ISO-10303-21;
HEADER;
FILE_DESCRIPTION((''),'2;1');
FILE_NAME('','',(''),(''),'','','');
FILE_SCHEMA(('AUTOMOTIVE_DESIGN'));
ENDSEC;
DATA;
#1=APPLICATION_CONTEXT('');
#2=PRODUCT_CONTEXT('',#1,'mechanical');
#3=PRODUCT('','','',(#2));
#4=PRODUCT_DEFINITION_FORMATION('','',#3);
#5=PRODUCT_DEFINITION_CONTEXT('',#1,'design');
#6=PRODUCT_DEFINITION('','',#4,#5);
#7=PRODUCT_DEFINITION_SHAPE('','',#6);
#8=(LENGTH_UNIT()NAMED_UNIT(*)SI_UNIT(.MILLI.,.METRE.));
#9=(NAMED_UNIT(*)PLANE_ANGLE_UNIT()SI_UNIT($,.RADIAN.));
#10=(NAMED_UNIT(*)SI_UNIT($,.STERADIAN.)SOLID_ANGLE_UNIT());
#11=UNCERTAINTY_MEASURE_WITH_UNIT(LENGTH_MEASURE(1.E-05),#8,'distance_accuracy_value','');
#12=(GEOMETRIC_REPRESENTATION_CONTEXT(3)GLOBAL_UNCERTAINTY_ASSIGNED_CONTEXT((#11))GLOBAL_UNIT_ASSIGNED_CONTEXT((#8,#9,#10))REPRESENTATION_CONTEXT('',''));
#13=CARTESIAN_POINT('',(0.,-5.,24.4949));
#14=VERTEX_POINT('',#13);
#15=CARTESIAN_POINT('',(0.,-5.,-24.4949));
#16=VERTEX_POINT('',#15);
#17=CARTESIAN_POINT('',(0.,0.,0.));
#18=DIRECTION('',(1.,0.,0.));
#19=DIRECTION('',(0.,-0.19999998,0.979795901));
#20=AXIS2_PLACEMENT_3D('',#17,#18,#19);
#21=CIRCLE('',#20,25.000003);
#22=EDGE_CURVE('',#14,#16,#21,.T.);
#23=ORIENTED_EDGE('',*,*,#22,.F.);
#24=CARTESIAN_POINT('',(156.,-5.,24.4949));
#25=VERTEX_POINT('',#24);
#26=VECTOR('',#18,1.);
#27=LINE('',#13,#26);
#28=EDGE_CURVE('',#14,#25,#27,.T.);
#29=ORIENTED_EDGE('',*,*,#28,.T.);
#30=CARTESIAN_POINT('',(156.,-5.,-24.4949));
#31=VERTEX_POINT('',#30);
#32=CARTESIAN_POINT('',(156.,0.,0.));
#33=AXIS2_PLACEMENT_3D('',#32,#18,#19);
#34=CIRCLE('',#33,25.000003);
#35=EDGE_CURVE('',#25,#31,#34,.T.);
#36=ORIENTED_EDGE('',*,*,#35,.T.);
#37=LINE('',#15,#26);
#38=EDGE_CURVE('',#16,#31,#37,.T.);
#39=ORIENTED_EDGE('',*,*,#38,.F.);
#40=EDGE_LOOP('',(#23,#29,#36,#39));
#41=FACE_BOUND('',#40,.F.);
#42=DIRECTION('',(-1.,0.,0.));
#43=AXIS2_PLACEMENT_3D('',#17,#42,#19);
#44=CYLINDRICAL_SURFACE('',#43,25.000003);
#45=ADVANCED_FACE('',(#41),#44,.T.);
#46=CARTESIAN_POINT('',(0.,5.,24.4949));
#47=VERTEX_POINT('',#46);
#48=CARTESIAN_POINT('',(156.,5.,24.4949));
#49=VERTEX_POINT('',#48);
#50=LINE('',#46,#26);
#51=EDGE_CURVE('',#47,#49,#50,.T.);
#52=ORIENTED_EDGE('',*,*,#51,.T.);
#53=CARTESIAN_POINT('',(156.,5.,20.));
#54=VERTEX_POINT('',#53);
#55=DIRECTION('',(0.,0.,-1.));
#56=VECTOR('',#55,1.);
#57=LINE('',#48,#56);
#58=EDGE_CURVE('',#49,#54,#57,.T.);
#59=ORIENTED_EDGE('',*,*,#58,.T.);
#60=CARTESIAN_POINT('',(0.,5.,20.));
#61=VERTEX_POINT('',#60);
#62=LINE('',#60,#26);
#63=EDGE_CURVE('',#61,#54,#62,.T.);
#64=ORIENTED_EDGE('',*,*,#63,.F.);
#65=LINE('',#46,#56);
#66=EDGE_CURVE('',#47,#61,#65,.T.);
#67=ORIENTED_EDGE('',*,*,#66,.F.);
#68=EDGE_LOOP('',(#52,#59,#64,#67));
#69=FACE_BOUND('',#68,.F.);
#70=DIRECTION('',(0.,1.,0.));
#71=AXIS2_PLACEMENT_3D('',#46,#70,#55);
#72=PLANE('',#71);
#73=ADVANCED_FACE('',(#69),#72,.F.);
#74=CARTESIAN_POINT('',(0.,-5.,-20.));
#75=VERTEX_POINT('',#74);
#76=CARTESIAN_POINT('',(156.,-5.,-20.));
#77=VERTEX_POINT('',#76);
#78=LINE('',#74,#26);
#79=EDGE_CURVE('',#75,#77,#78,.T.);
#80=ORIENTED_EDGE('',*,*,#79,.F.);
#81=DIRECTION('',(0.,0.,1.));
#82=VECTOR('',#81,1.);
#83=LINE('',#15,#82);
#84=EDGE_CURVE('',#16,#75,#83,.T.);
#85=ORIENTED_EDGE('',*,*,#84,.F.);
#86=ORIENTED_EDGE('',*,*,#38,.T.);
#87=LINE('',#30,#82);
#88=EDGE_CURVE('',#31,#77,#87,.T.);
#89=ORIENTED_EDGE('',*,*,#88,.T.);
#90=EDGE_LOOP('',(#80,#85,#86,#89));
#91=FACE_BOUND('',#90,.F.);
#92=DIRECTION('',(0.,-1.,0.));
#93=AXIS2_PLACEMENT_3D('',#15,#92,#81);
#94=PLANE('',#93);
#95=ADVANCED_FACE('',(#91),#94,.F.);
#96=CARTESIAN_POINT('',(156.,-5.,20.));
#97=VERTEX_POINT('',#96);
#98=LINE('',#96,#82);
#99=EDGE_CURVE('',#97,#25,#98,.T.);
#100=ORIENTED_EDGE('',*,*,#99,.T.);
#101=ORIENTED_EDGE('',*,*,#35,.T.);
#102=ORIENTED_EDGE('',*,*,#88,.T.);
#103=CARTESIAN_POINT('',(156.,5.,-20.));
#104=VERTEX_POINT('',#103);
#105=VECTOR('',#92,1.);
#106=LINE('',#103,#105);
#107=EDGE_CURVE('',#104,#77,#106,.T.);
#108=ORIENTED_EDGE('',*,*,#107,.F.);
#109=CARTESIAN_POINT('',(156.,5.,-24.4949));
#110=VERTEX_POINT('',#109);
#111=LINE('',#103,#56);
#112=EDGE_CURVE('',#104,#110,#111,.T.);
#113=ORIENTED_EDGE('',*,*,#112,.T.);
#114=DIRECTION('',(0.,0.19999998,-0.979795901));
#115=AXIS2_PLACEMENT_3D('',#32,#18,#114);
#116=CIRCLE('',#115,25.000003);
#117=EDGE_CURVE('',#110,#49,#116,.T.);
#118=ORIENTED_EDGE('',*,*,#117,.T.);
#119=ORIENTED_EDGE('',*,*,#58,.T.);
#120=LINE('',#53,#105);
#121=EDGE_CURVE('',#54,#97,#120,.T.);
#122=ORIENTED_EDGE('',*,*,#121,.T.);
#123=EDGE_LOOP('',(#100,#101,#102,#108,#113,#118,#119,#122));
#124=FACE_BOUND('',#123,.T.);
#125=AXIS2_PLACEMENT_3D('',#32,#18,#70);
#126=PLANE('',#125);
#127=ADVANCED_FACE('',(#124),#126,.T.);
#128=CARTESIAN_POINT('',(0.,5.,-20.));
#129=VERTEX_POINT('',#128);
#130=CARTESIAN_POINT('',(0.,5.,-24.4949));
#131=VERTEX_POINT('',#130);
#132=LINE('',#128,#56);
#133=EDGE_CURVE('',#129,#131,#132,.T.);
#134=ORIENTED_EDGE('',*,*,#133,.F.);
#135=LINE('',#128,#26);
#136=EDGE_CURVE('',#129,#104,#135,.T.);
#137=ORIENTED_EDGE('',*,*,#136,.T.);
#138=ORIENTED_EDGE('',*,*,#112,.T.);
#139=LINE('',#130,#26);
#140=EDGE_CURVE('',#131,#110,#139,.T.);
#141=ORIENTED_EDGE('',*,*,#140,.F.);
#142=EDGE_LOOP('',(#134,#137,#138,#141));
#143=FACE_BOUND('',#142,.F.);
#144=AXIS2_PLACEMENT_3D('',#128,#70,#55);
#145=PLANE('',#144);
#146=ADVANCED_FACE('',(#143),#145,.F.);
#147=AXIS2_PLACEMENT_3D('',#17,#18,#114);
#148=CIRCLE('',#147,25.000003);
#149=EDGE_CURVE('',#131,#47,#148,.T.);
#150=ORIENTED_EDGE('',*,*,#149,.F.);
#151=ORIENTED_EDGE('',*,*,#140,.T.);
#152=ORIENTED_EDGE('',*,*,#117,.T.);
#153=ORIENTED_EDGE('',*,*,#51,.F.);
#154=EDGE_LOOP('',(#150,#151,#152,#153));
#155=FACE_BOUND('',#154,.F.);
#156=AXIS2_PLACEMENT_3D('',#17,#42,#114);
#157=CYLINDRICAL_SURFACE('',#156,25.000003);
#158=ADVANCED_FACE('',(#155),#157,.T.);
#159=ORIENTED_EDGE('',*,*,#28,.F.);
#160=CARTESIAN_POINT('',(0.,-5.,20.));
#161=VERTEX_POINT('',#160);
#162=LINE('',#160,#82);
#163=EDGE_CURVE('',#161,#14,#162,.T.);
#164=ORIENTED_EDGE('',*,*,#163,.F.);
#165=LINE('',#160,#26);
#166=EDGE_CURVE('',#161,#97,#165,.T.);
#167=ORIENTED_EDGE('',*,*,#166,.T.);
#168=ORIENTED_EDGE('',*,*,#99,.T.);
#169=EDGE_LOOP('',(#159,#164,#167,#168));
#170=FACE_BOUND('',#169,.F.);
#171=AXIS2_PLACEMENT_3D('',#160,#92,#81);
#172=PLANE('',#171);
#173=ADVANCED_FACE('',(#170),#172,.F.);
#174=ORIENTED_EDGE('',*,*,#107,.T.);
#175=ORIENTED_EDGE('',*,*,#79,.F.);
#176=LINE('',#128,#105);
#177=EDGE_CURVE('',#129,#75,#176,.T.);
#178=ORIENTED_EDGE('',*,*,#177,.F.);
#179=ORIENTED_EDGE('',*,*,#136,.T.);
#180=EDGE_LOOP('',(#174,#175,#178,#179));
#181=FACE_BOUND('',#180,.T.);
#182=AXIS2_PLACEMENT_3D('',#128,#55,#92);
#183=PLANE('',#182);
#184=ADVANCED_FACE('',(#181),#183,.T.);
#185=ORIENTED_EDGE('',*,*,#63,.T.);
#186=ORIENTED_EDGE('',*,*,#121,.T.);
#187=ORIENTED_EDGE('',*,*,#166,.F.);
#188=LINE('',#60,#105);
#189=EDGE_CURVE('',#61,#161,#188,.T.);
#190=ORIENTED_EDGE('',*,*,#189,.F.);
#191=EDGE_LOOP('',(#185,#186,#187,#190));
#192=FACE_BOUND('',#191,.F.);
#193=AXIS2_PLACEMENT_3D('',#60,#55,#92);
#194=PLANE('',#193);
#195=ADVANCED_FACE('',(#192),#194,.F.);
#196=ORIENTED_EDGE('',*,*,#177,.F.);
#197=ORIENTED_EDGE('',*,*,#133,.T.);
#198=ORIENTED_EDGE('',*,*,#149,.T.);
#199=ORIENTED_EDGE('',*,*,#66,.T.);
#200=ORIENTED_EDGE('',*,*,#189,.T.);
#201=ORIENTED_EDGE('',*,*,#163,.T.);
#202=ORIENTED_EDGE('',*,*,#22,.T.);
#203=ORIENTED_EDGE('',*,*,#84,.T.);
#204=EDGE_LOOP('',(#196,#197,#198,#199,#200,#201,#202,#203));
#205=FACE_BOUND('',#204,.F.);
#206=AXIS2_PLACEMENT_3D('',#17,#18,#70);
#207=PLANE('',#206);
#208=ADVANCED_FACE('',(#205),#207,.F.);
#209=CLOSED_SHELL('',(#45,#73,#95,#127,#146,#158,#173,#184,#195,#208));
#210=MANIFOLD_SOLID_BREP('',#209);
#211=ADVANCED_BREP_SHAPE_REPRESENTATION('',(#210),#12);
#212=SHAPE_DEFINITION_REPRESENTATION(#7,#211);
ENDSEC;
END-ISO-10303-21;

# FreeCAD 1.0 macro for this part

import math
import FreeCAD as App
import Part
import Sketcher
from FreeCAD import Vector

doc = App.newDocument("Part")
body = doc.addObject("PartDesign::Body", "Body")

sketch1 = body.newObject("Sketcher::SketchObject", "Sketch")
sketch1.AttachmentSupport = (doc.getObject("YZ_Plane"), [""])
sketch1.MapMode = "FlatFace"
sketch1.addGeometry([
    Part.LineSegment(Vector(5, 24.5, 0), Vector(5, 20, 0)),
    Part.LineSegment(Vector(5, 20, 0), Vector(-5, 20, 0)),
    Part.LineSegment(Vector(-5, 20, 0), Vector(-5, 24.5, 0)),
    Part.ArcOfCircle(Part.Circle(Vector(0, 0, 0), Vector(0, 0, 1), 25), math.radians(102), math.radians(258)),
    Part.LineSegment(Vector(-5, -24.5, 0), Vector(-5, -20, 0)),
    Part.LineSegment(Vector(-5, -20, 0), Vector(5, -20, 0)),
    Part.LineSegment(Vector(5, -20, 0), Vector(5, -24.5, 0)),
    Part.ArcOfCircle(Part.Circle(Vector(0, 0, 0), Vector(0, 0, 1), 25), math.radians(-78), math.radians(78)),
], False)
sketch1.addConstraint([
    Sketcher.Constraint("Coincident", 0, 2, 1, 1),
    Sketcher.Constraint("Coincident", 1, 2, 2, 1),
    Sketcher.Constraint("Coincident", 2, 2, 3, 1),
    Sketcher.Constraint("Coincident", 3, 2, 4, 1),
    Sketcher.Constraint("Coincident", 4, 2, 5, 1),
    Sketcher.Constraint("Coincident", 5, 2, 6, 1),
    Sketcher.Constraint("Coincident", 6, 2, 7, 1),
    Sketcher.Constraint("Coincident", 7, 2, 0, 1),
    Sketcher.Constraint("Vertical", 0),
    Sketcher.Constraint("Horizontal", 1),
    Sketcher.Constraint("Vertical", 2),
    Sketcher.Constraint("Vertical", 4),
    Sketcher.Constraint("Horizontal", 5),
    Sketcher.Constraint("Vertical", 6),
    Sketcher.Constraint("Coincident", 3, 3, -1, 1),
    Sketcher.Constraint("Coincident", 7, 3, -1, 1),
    Sketcher.Constraint("Equal", 3, 7),
    Sketcher.Constraint("Symmetric", 0, 2, 4, 2, -1, 1),
    Sketcher.Constraint("Horizontal", 3, 2, 6, 2),
    Sketcher.Constraint("Horizontal", 2, 2, 7, 2),
    Sketcher.Constraint("Radius", 3, 25.0),
    Sketcher.Constraint("DistanceX", 1, 2, 1, 1, 10.0),
    Sketcher.Constraint("DistanceY", -1, 1, 0, 2, 20.0),
])
pad1 = body.newObject("PartDesign::Pad", "Pad")
pad1.Profile = sketch1
pad1.Length = 156

doc.recompute()
